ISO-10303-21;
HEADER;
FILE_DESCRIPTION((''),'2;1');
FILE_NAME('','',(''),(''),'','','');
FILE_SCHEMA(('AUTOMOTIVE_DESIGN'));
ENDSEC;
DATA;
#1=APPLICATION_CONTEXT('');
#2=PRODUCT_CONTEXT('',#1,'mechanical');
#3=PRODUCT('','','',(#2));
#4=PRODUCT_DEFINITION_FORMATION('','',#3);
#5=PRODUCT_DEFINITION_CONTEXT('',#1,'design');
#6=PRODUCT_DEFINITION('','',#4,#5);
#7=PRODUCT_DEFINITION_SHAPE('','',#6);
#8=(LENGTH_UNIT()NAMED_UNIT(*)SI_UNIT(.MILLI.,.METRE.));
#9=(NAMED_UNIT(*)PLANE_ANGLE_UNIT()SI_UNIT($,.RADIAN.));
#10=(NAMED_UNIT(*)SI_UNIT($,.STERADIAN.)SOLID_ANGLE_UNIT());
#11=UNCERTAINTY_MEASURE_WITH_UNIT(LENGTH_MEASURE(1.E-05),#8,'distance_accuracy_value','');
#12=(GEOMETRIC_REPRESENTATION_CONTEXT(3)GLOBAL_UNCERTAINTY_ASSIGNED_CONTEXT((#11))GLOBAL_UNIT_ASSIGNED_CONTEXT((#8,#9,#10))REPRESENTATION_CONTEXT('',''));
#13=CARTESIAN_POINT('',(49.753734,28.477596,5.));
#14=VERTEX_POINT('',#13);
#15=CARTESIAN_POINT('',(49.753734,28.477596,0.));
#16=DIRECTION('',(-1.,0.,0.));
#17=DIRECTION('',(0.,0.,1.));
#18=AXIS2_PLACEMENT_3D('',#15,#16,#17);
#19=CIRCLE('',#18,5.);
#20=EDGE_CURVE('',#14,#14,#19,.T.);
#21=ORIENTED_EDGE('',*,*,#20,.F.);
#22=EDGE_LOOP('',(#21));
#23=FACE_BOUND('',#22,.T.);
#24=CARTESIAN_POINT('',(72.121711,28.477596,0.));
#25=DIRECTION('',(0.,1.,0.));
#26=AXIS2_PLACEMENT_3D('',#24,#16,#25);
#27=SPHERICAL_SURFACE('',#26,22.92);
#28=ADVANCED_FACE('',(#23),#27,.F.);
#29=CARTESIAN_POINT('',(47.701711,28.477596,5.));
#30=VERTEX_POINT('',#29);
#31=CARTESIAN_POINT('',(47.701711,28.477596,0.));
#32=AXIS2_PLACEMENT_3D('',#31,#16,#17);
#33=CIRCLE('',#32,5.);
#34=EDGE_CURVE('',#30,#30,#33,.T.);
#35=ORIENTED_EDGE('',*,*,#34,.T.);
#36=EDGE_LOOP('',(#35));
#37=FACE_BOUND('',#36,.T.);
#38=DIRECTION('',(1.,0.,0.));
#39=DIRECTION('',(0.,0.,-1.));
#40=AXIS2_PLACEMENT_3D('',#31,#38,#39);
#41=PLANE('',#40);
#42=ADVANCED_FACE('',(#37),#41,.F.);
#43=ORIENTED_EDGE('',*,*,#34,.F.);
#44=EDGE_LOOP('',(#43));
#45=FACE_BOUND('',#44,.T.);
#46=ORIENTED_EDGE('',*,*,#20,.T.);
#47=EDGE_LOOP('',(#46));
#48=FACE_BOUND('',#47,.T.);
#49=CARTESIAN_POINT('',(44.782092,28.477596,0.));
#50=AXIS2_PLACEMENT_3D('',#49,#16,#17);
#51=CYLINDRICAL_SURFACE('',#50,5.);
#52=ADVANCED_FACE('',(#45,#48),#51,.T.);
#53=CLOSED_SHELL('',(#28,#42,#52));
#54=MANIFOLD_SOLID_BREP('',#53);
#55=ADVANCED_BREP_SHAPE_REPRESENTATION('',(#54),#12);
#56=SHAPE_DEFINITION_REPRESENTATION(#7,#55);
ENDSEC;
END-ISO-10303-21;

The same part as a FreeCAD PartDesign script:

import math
import FreeCAD as App
import Part
import Sketcher
from FreeCAD import Vector
Q = App.Units.Quantity

doc = App.newDocument("Part")
body = doc.addObject("PartDesign::Body", "Body")

# Sketch on XY plane
sketch1 = doc.addObject("Sketcher::SketchObject", "Sketch")
body.addObject(sketch1)
sketch1.AttachmentSupport = (doc.XY_Plane, [""])
sketch1.MapMode = "FlatFace"
sketch1.addGeometry([
    Part.LineSegment(Vector(47.7, 33.5, 0), Vector(47.7, 28.5, 0)),
    Part.LineSegment(Vector(47.7, 28.5, 0), Vector(49.2, 28.5, 0)),
    Part.ArcOfCircle(Part.Circle(Vector(72.1, 28.5, 0), Vector(0, 0, 1), 22.9), math.radians(167.4), math.radians(180)),
    Part.LineSegment(Vector(49.8, 33.5, 0), Vector(47.7, 33.5, 0)),
], False)
sketch1.addGeometry(Part.LineSegment(Vector(47.7, 28.5, 0), Vector(72.1, 28.5, 0)), True)  # axis
sketch1.addConstraint([
    Sketcher.Constraint("Coincident", 0, 2, 1, 1),
    Sketcher.Constraint("Coincident", 1, 2, 2, 2),
    Sketcher.Constraint("Coincident", 2, 1, 3, 1),
    Sketcher.Constraint("Coincident", 3, 2, 0, 1),
    Sketcher.Constraint("Vertical", 0),
    Sketcher.Constraint("Horizontal", 1),
    Sketcher.Constraint("Horizontal", 3),
    Sketcher.Constraint("Horizontal", 4),
    Sketcher.Constraint("Coincident", 4, 1, 0, 2),
    Sketcher.Constraint("Coincident", 4, 2, 2, 3),
    Sketcher.Constraint("DistanceY", 0, 2, 0, 1, Q("5 mm")),
    Sketcher.Constraint("Radius", 2, Q("22.92 mm")),
    Sketcher.Constraint("DistanceX", 1, 1, 1, 2, Q("1.5 mm")),
    Sketcher.Constraint("DistanceX", -1, 1, 2, 3, Q("72.121711 mm")),
    Sketcher.Constraint("DistanceY", -1, 1, 2, 3, Q("28.477596 mm")),
])
revolution = doc.addObject("PartDesign::Revolution", "Revolution")
body.addObject(revolution)
revolution.Profile = sketch1
revolution.ReferenceAxis = (sketch1, ["Axis0"])
revolution.Angle = 360

doc.recompute()
